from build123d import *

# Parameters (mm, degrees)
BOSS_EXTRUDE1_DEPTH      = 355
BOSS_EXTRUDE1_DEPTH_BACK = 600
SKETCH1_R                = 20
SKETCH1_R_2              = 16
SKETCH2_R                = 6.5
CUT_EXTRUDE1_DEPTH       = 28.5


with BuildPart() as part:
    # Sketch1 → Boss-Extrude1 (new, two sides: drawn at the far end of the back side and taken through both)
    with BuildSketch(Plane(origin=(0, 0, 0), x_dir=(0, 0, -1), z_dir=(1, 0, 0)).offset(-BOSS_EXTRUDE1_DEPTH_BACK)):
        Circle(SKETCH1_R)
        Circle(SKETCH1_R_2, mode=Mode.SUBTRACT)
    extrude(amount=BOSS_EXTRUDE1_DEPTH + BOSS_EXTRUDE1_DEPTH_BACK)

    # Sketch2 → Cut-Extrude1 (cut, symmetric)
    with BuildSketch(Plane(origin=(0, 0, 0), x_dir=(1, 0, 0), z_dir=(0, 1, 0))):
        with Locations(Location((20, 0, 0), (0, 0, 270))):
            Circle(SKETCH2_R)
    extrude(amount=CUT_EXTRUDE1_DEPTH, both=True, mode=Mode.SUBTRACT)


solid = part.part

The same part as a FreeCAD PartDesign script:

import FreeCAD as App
import Part
import Sketcher
Q = App.Units.Quantity

doc = App.newDocument("Part")
body = doc.addObject("PartDesign::Body", "Body")

sketch1 = doc.addObject("Sketcher::SketchObject", "Sketch")
body.addObject(sketch1)
sketch1.AttachmentSupport = (doc.YZ_Plane, [""])
sketch1.MapMode = "FlatFace"
sketch1.addGeometry([
    Part.Circle(App.Vector(0, 0, 0), App.Vector(0, 0, 1), 20),
    Part.Circle(App.Vector(0, 0, 0), App.Vector(0, 0, 1), 16),
], False)
sketch1.addConstraint([
    Sketcher.Constraint("Coincident", 0, 3, -1, 1),
    Sketcher.Constraint("Coincident", 1, 3, -1, 1),
    Sketcher.Constraint("Diameter", 0, Q("40 mm")),
    Sketcher.Constraint("Diameter", 1, Q("32 mm")),
])
pad1 = doc.addObject("PartDesign::Pad", "Pad")
body.addObject(pad1)
pad1.Profile = sketch1
pad1.Type = "TwoLengths"
pad1.Length = 355
pad1.Length2 = 600

sketch2 = doc.addObject("Sketcher::SketchObject", "Sketch001")
body.addObject(sketch2)
sketch2.AttachmentSupport = (doc.XZ_Plane, [""])
sketch2.MapMode = "FlatFace"
sketch2.addGeometry(Part.Circle(App.Vector(20, 0, 0), App.Vector(0, 0, 1), 6), False)
sketch2.addConstraint([
    Sketcher.Constraint("PointOnObject", 0, 3, -1),
    Sketcher.Constraint("Diameter", 0, Q("13 mm")),
    Sketcher.Constraint("DistanceX", -1, 1, 0, 3, Q("20 mm")),
])
pocket1 = doc.addObject("PartDesign::Pocket", "Pocket")
body.addObject(pocket1)
pocket1.Profile = sketch2
pocket1.Length = 57
pocket1.Midplane = True

doc.recompute()
